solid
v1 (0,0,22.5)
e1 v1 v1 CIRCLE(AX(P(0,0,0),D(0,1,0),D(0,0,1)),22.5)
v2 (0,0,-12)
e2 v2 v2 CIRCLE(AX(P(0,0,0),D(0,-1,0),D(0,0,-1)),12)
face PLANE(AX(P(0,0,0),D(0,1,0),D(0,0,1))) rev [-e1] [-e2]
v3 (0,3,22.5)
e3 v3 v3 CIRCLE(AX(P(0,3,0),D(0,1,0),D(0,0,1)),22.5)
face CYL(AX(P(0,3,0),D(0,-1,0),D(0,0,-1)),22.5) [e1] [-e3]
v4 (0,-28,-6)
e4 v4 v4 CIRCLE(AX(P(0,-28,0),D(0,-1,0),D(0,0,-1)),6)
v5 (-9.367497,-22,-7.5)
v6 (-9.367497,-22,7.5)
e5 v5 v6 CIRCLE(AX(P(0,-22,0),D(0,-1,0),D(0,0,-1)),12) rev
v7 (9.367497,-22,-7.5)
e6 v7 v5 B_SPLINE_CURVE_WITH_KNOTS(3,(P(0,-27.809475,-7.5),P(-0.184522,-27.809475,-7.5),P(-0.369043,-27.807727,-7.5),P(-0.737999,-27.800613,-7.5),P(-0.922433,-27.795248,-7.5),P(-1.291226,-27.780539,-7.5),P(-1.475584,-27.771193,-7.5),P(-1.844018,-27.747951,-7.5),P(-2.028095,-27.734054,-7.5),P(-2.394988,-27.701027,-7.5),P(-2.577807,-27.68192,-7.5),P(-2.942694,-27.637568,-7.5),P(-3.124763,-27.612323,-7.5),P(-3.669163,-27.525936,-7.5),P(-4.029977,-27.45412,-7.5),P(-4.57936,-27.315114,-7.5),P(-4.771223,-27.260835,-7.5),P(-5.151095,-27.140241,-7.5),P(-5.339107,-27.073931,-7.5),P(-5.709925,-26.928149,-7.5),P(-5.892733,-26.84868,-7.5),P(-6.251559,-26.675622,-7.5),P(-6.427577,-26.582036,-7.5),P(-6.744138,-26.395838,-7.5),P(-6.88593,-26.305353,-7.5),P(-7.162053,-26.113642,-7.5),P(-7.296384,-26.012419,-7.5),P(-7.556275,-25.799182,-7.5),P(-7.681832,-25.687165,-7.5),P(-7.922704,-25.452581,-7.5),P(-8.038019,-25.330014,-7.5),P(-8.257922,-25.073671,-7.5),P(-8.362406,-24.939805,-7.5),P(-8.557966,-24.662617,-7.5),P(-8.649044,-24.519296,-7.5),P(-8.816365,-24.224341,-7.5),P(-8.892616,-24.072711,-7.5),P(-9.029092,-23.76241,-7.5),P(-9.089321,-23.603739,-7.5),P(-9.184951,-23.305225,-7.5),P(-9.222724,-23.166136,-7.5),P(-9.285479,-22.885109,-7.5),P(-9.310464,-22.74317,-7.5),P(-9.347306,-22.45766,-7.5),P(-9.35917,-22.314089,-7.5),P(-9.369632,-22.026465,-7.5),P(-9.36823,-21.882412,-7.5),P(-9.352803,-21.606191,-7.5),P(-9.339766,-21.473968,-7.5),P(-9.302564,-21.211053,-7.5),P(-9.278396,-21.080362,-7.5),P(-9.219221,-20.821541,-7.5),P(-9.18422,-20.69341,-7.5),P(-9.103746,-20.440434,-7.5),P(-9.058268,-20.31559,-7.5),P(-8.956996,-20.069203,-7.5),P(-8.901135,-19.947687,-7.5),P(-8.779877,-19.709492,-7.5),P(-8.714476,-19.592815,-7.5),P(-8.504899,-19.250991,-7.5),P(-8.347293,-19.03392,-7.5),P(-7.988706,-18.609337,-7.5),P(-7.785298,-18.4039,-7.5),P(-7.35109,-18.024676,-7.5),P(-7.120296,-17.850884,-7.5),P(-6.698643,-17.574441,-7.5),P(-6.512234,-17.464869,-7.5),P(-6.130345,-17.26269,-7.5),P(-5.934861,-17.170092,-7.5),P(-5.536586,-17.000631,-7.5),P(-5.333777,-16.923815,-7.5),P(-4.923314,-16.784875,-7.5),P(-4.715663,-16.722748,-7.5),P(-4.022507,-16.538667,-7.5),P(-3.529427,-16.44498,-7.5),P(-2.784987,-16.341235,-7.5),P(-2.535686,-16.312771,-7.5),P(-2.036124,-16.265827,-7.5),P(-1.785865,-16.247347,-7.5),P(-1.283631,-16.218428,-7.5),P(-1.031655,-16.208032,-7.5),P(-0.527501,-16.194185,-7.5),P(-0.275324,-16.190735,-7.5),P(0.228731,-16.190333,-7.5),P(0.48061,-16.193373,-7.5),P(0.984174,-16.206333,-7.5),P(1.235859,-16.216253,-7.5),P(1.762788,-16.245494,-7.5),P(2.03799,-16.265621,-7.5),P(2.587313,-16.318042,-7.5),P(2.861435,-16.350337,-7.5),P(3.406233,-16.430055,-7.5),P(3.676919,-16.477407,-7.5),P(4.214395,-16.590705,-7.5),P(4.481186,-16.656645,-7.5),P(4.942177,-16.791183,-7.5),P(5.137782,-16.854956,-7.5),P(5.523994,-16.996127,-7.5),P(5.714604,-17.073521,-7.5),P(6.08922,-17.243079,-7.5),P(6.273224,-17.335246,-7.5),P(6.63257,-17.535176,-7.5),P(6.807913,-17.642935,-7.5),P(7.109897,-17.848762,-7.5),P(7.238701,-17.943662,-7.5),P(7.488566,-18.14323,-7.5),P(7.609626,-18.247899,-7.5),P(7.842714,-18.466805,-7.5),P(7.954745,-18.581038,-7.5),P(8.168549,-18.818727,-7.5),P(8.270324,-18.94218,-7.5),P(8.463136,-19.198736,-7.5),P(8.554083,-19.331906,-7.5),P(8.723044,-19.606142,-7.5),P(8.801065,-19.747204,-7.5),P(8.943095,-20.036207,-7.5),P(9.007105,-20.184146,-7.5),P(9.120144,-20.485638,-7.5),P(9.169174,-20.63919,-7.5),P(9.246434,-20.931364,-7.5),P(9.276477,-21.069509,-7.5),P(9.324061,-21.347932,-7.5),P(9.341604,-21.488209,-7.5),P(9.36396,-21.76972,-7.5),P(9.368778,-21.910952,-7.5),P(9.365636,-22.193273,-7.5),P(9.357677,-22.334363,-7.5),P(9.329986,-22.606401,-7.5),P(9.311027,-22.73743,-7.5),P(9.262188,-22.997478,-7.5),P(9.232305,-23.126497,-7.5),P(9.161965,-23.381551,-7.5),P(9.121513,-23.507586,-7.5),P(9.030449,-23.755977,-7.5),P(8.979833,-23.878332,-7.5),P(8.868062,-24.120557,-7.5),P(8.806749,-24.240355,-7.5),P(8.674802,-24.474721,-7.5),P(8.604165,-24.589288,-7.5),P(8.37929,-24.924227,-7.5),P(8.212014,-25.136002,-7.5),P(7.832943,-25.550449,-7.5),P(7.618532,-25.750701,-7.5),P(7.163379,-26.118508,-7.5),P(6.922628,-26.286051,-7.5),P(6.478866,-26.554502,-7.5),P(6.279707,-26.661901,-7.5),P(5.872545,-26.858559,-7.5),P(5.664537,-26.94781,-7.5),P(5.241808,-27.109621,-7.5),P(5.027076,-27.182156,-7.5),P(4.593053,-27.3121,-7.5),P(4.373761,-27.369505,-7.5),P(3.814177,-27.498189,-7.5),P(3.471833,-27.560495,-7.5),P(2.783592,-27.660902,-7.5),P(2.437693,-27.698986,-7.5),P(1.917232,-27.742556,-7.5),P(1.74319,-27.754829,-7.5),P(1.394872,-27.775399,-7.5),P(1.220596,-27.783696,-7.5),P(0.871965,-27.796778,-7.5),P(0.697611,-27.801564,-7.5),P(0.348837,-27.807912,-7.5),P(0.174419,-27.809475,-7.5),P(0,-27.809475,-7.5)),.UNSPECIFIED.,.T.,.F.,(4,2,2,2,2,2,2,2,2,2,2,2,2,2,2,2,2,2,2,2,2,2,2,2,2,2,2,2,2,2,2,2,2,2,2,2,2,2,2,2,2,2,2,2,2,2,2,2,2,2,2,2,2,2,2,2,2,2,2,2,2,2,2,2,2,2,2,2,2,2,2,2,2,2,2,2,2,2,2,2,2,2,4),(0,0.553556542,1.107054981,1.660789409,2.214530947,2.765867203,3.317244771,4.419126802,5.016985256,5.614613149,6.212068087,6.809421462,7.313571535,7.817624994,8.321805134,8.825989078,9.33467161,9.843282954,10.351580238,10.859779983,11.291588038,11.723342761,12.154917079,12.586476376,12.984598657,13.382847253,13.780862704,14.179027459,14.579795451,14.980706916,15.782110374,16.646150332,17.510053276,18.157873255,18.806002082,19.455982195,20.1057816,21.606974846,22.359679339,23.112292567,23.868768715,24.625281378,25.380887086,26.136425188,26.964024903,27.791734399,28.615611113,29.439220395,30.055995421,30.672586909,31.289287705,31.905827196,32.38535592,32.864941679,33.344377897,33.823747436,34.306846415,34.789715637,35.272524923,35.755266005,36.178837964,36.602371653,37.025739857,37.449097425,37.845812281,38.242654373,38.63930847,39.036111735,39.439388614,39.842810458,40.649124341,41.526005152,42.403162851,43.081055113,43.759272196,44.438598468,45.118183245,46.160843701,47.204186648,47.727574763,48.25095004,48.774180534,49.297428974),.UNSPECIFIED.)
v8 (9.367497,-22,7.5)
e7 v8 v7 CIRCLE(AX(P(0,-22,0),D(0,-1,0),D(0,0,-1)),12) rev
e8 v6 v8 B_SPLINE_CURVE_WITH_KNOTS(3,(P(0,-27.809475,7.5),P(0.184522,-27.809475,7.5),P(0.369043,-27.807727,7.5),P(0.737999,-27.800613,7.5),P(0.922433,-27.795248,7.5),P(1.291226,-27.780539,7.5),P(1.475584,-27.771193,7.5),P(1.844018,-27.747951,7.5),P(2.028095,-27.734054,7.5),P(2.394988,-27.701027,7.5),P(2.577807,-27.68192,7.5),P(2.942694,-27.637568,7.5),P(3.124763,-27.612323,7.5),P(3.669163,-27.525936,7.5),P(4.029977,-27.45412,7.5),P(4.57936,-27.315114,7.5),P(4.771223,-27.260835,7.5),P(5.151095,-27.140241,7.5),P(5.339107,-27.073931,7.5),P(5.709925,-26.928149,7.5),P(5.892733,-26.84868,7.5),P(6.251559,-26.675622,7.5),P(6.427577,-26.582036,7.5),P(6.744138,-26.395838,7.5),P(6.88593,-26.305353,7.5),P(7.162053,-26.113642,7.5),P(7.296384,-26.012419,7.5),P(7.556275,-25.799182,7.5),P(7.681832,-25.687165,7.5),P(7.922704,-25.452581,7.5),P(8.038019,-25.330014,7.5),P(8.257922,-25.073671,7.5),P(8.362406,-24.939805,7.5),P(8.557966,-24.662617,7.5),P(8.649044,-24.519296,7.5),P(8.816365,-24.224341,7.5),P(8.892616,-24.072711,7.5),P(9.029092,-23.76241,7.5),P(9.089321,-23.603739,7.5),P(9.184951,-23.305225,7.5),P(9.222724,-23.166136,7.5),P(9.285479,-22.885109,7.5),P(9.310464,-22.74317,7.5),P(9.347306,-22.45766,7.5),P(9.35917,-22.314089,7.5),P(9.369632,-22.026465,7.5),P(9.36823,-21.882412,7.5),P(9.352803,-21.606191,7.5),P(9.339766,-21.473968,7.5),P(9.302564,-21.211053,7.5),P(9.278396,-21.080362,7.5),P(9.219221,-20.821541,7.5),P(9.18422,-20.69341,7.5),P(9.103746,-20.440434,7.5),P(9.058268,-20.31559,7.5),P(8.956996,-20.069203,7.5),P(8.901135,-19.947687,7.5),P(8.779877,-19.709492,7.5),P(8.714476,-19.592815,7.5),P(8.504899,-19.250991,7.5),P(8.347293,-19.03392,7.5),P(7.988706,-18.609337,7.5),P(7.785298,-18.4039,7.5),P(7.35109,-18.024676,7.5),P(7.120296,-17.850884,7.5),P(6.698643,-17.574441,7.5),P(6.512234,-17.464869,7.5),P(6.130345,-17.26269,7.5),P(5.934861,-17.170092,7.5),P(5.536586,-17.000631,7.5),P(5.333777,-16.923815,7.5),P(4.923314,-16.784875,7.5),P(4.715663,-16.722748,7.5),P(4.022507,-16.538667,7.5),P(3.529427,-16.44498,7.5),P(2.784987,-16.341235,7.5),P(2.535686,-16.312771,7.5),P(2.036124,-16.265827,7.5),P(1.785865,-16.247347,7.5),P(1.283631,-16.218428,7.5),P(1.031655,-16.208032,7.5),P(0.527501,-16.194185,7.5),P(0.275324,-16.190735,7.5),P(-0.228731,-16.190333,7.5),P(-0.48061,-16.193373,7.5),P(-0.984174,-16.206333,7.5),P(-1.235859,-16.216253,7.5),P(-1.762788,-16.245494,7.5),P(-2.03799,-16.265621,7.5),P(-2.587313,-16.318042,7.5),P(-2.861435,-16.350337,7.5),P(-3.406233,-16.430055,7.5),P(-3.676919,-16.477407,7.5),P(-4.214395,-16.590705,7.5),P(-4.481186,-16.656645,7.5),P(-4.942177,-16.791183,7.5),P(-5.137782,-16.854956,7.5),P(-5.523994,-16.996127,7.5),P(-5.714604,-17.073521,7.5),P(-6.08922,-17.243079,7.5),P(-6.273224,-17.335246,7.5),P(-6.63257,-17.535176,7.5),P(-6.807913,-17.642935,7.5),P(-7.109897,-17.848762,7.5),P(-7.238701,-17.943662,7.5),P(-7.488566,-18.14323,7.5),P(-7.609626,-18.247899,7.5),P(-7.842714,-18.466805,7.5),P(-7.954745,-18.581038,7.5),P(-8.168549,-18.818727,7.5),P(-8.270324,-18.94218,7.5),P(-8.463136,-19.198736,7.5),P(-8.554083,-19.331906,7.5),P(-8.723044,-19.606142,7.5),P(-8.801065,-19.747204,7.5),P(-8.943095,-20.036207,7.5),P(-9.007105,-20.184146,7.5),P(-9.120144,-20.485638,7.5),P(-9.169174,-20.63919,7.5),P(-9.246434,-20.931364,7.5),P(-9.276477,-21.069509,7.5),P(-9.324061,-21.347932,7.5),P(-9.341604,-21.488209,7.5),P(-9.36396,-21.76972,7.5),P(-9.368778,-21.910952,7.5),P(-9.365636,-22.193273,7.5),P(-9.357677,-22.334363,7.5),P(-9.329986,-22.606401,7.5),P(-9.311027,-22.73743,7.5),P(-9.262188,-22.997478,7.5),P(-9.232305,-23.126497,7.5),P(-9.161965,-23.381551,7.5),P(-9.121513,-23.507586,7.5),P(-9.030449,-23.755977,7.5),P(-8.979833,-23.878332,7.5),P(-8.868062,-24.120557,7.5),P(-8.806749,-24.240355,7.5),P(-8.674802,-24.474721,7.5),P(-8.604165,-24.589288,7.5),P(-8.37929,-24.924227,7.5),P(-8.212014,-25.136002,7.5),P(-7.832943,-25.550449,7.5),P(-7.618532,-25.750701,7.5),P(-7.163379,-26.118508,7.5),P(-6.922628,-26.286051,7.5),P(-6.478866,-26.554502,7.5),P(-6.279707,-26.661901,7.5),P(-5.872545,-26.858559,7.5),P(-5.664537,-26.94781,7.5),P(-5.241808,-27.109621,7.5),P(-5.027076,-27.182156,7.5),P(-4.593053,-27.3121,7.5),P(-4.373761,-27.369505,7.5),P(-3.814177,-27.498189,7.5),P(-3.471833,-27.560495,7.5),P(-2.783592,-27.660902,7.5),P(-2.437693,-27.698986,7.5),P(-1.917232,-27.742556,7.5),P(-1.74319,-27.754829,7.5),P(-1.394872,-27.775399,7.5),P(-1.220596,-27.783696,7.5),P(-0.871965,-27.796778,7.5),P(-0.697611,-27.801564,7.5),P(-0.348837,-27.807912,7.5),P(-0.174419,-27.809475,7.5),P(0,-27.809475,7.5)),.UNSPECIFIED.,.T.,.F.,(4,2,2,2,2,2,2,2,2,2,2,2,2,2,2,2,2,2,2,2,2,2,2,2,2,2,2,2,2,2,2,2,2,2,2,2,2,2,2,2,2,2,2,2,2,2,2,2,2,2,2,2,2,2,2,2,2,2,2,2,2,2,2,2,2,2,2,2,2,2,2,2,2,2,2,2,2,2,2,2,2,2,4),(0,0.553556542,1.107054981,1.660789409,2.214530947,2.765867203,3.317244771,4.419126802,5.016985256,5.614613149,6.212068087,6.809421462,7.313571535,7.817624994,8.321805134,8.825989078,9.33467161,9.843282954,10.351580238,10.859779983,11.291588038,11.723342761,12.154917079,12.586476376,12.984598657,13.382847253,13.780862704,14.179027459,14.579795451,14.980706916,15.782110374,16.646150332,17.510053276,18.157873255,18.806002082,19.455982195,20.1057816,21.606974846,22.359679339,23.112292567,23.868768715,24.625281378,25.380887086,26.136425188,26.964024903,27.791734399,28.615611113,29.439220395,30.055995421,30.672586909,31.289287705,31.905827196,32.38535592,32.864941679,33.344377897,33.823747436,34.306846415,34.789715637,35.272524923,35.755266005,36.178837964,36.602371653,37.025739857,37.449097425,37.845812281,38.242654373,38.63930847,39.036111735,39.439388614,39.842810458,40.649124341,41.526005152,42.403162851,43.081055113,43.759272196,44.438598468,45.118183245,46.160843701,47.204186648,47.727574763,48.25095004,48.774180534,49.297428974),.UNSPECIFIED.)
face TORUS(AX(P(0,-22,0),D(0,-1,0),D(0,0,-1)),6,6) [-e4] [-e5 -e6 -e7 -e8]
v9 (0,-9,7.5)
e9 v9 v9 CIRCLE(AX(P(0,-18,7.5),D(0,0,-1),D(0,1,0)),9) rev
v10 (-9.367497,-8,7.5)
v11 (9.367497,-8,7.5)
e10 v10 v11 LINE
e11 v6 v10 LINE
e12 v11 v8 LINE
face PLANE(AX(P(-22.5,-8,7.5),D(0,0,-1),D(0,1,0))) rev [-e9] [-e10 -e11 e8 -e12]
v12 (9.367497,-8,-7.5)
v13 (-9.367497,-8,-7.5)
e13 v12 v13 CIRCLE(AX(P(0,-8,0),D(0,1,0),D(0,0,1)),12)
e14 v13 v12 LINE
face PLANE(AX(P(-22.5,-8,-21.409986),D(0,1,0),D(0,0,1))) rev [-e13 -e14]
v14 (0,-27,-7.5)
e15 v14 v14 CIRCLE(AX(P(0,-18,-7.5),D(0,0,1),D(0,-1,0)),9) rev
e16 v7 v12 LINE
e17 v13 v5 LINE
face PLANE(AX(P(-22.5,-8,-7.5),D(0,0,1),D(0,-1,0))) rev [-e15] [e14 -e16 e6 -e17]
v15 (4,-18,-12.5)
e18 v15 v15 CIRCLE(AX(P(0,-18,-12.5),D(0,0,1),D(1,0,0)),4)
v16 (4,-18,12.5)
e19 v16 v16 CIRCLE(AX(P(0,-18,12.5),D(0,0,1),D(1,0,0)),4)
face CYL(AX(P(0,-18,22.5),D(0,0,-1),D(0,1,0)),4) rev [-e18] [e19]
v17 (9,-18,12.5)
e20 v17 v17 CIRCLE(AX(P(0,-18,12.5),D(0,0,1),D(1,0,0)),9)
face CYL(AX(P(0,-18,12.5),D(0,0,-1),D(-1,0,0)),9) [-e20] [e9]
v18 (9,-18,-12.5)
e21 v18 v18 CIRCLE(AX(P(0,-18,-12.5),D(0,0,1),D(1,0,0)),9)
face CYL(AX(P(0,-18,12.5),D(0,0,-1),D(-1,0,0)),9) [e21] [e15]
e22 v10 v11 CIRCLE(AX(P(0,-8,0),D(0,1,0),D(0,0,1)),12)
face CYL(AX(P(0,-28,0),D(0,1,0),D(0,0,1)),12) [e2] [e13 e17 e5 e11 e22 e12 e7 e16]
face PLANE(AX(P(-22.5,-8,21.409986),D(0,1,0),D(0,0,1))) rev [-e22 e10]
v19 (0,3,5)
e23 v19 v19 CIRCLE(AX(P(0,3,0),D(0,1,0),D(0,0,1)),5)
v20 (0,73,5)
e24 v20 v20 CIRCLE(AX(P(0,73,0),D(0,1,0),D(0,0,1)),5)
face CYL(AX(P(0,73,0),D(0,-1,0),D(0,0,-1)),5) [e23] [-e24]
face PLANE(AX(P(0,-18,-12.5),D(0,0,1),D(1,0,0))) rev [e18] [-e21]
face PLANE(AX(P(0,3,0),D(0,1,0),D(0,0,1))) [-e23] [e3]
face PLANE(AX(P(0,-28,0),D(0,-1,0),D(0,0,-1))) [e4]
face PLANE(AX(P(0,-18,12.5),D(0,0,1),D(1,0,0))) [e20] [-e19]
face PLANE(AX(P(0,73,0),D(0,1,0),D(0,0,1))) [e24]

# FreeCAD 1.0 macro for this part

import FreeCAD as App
import Part
import Sketcher


def edges_at(feature, points):
    """Names of the edges that pass closest to the given points."""
    edges = feature.Shape.Edges
    near = lambda p: min(range(len(edges)), key=lambda i: edges[i].distToShape(Part.Vertex(*p))[0])
    return sorted({f"Edge{near(p) + 1}" for p in points})

doc = App.newDocument("Part")
body = doc.addObject("PartDesign::Body", "Body")

# Sketch on XZ plane
sketch1 = doc.addObject("Sketcher::SketchObject", "Sketch")
body.addObject(sketch1)
sketch1.AttachmentSupport = (doc.XZ_Plane, [""])
sketch1.MapMode = "FlatFace"
sketch1.addGeometry(Part.Circle(App.Vector(0, 0, 0), App.Vector(0, 0, 1), 22), False)
sketch1.addConstraint([
    Sketcher.Constraint("Coincident", 0, 3, -1, 1),
    Sketcher.Constraint("Diameter", 0, 45.0),
])
pad1 = doc.addObject("PartDesign::Pad", "Pad")
body.addObject(pad1)
pad1.Profile = sketch1
pad1.Length = 3
pad1.Reversed = True

# Sketch on XZ plane
sketch2 = doc.addObject("Sketcher::SketchObject", "Sketch001")
body.addObject(sketch2)
sketch2.AttachmentSupport = (doc.XZ_Plane, [""])
sketch2.MapMode = "FlatFace"
sketch2.AttachmentOffset = App.Placement(App.Vector(0, 0, -3), App.Rotation())
sketch2.addGeometry(Part.Circle(App.Vector(0, 0, 0), App.Vector(0, 0, 1), 5), False)
sketch2.addConstraint([
    Sketcher.Constraint("Coincident", 0, 3, -1, 1),
    Sketcher.Constraint("Diameter", 0, 10.0),
])
pad2 = doc.addObject("PartDesign::Pad", "Pad001")
body.addObject(pad2)
pad2.Profile = sketch2
pad2.Length = 70
pad2.Reversed = True

# Sketch on XZ plane
sketch3 = doc.addObject("Sketcher::SketchObject", "Sketch002")
body.addObject(sketch3)
sketch3.AttachmentSupport = (doc.XZ_Plane, [""])
sketch3.MapMode = "FlatFace"
sketch3.addGeometry(Part.Circle(App.Vector(0, 0, 0), App.Vector(0, 0, 1), 12), False)
sketch3.addConstraint([
    Sketcher.Constraint("Coincident", 0, 3, -1, 1),
    Sketcher.Constraint("Diameter", 0, 24.0),
])
pad3 = doc.addObject("PartDesign::Pad", "Pad002")
body.addObject(pad3)
pad3.Profile = sketch3
pad3.Length = 28
doc.recompute()

fillet = doc.addObject("PartDesign::Fillet", "Fillet")
body.addObject(fillet)
fillet.Base = (pad3, edges_at(pad3, [(0, -28, 12)]))
fillet.Radius = 6

# Sketch on YZ plane
sketch4 = doc.addObject("Sketcher::SketchObject", "Sketch003")
body.addObject(sketch4)
sketch4.AttachmentSupport = (doc.YZ_Plane, [""])
sketch4.MapMode = "FlatFace"
sketch4.addGeometry([
    Part.LineSegment(App.Vector(-8, -8, 0), App.Vector(-28, -8, 0)),  # 0
    Part.LineSegment(App.Vector(-28, -8, 0), App.Vector(-28, -21, 0)),  # 1
    Part.LineSegment(App.Vector(-28, -21, 0), App.Vector(-8, -21, 0)),  # 2
    Part.LineSegment(App.Vector(-8, -21, 0), App.Vector(-8, -8, 0)),  # 3
    Part.LineSegment(App.Vector(-8, 21, 0), App.Vector(-28, 21, 0)),  # 4
    Part.LineSegment(App.Vector(-28, 21, 0), App.Vector(-28, 8, 0)),  # 5
    Part.LineSegment(App.Vector(-28, 8, 0), App.Vector(-8, 8, 0)),  # 6
    Part.LineSegment(App.Vector(-8, 8, 0), App.Vector(-8, 21, 0)),  # 7
], False)
sketch4.addConstraint([
    Sketcher.Constraint("Coincident", 0, 2, 1, 1),
    Sketcher.Constraint("Coincident", 1, 2, 2, 1),
    Sketcher.Constraint("Coincident", 2, 2, 3, 1),
    Sketcher.Constraint("Coincident", 3, 2, 0, 1),
    Sketcher.Constraint("Coincident", 4, 2, 5, 1),
    Sketcher.Constraint("Coincident", 5, 2, 6, 1),
    Sketcher.Constraint("Coincident", 6, 2, 7, 1),
    Sketcher.Constraint("Coincident", 7, 2, 4, 1),
    Sketcher.Constraint("Horizontal", 0),
    Sketcher.Constraint("Vertical", 1),
    Sketcher.Constraint("Horizontal", 2),
    Sketcher.Constraint("Vertical", 3),
    Sketcher.Constraint("Horizontal", 4),
    Sketcher.Constraint("Vertical", 5),
    Sketcher.Constraint("Horizontal", 6),
    Sketcher.Constraint("Vertical", 7),
    Sketcher.Constraint("Symmetric", 1, 2, 4, 2, -1),
    Sketcher.Constraint("Symmetric", 3, 2, 6, 2, -1),
    Sketcher.Constraint("DistanceX", 0, 2, 0, 1, 20.0),
    Sketcher.Constraint("DistanceX", 0, 2, -1, 1, 28.0),
    Sketcher.Constraint("DistanceY", 0, 2, 5, 2, 15.0),
    Sketcher.Constraint("DistanceY", 1, 2, 1, 1, 13.909986),
])
pocket1 = doc.addObject("PartDesign::Pocket", "Pocket")
body.addObject(pocket1)
pocket1.Profile = sketch4
pocket1.Type = "ThroughAll"
pocket1.Midplane = True

# Sketch on XY plane
sketch5 = doc.addObject("Sketcher::SketchObject", "Sketch004")
body.addObject(sketch5)
sketch5.AttachmentSupport = (doc.XY_Plane, [""])
sketch5.MapMode = "FlatFace"
sketch5.AttachmentOffset = App.Placement(App.Vector(0, 0, -7.5), App.Rotation())
sketch5.addGeometry(Part.Circle(App.Vector(0, -18, 0), App.Vector(0, 0, 1), 4), False)
sketch5.addConstraint([
    Sketcher.Constraint("PointOnObject", 0, 3, -2),
    Sketcher.Constraint("Diameter", 0, 8.0),
    Sketcher.Constraint("DistanceY", 0, 3, -1, 1, 18.0),
])
pocket2 = doc.addObject("PartDesign::Pocket", "Pocket001")
body.addObject(pocket2)
pocket2.Profile = sketch5
pocket2.Type = "ThroughAll"
pocket2.Reversed = True

# Sketch on XY plane
sketch6 = doc.addObject("Sketcher::SketchObject", "Sketch005")
body.addObject(sketch6)
sketch6.AttachmentSupport = (doc.XY_Plane, [""])
sketch6.MapMode = "FlatFace"
sketch6.addGeometry([
    Part.Circle(App.Vector(0, -18, 0), App.Vector(0, 0, 1), 9),
    Part.Circle(App.Vector(0, -18, 0), App.Vector(0, 0, 1), 4),
], False)
sketch6.addConstraint([
    Sketcher.Constraint("Coincident", 1, 3, 0, 3),
    Sketcher.Constraint("PointOnObject", 0, 3, -2),
    Sketcher.Constraint("Diameter", 0, 18.0),
    Sketcher.Constraint("Diameter", 1, 8.0),
    Sketcher.Constraint("DistanceY", 0, 3, -1, 1, 18.0),
])
pad4 = doc.addObject("PartDesign::Pad", "Pad003")
body.addObject(pad4)
pad4.Profile = sketch6
pad4.Length = 25
pad4.Midplane = True

doc.recompute()
